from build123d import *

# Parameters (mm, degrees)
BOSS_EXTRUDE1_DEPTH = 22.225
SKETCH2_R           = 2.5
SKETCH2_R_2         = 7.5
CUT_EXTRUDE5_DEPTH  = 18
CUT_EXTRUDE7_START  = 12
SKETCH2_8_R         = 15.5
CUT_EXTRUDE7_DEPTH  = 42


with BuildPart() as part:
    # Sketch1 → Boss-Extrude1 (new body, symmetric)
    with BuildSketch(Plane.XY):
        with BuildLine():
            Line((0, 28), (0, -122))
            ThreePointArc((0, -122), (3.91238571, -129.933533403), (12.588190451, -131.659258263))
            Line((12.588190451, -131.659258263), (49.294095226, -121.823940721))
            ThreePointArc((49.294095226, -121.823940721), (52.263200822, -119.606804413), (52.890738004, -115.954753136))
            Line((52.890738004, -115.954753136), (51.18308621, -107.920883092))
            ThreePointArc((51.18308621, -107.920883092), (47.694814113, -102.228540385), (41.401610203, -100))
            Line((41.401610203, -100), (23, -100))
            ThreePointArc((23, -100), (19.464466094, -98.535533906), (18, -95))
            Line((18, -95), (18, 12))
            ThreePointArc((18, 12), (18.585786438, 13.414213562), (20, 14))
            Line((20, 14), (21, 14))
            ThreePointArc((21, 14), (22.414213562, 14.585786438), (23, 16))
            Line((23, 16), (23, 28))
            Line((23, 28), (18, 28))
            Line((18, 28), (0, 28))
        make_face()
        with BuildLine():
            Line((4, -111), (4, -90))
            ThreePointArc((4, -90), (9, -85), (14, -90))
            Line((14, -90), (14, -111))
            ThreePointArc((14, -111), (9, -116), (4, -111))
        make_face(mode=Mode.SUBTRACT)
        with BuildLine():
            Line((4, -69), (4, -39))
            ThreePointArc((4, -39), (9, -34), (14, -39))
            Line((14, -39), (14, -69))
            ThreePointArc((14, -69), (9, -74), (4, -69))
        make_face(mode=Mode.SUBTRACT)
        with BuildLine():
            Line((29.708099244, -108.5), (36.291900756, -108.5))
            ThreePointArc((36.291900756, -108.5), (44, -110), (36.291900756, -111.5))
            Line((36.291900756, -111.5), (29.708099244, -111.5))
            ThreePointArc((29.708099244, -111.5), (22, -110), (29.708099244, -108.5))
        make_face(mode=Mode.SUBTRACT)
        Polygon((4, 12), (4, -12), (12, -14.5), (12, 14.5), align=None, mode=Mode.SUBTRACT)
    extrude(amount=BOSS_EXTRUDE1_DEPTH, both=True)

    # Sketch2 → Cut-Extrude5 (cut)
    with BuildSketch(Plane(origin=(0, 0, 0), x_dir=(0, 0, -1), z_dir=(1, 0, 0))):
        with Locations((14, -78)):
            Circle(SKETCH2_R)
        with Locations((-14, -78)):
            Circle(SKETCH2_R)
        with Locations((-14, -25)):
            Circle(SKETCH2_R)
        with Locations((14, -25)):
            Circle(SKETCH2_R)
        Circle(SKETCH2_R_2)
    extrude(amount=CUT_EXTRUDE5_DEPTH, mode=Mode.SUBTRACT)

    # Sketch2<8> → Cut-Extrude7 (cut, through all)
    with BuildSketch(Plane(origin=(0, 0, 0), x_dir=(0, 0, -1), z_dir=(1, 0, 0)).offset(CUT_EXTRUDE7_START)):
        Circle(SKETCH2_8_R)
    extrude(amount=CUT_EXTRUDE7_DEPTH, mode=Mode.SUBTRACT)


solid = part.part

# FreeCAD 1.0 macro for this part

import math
import FreeCAD as App
import Part
import Sketcher
from FreeCAD import Vector
Q = App.Units.Quantity

doc = App.newDocument("Part")
params = doc.addObject("Spreadsheet::Sheet", "Params")
for row, (alias, value) in enumerate([
    ("sketch1_radius", "10 mm"),
    ("sketch1_radius2", "5 mm"),
    ("sketch1_radius3", "2 mm"),
    ("sketch1_radius4", "4 mm"),
    ("sketch1_width", "23 mm"),
    ("pad1_length", "44.45 mm"),
    ("sketch2_diameter", "5 mm"),
    ("sketch2_diameter2", "15 mm"),
    ("pocket1_length", "18 mm"),
    ("sketch3_diameter", "31 mm"),
], start=1):
    params.set(f"A{row}", alias)
    params.set(f"B{row}", "=" + value)
    params.setAlias(f"B{row}", alias)

body = doc.addObject("PartDesign::Body", "Body")

# Sketch on XY plane
sketch1 = body.newObject("Sketcher::SketchObject", "Sketch")
sketch1.AttachmentSupport = (doc.getObject("XY_Plane"), [""])
sketch1.MapMode = "FlatFace"
sketch1.addGeometry([
    Part.LineSegment(Vector(0, 28, 0), Vector(0, -122, 0)),  # 0
    Part.ArcOfCircle(Part.Circle(Vector(10, -122, 0), Vector(0, 0, 1), 10), math.radians(180), math.radians(285)),  # 1
    Part.LineSegment(Vector(12.6, -131.7, 0), Vector(49.3, -121.8, 0)),  # 2
    Part.ArcOfCircle(Part.Circle(Vector(48, -117, 0), Vector(0, 0, 1), 5), math.radians(-75), math.radians(12)),  # 3
    Part.LineSegment(Vector(52.9, -116, 0), Vector(51.2, -107.9, 0)),  # 4
    Part.ArcOfCircle(Part.Circle(Vector(41.4, -110, 0), Vector(0, 0, 1), 10), math.radians(12), math.radians(90)),  # 5
    Part.LineSegment(Vector(41.4, -100, 0), Vector(23, -100, 0)),  # 6
    Part.ArcOfCircle(Part.Circle(Vector(23, -95, 0), Vector(0, 0, 1), 5), math.radians(180), math.radians(270)),  # 7
    Part.LineSegment(Vector(18, -95, 0), Vector(18, 12, 0)),  # 8
    Part.ArcOfCircle(Part.Circle(Vector(20, 12, 0), Vector(0, 0, 1), 2), math.radians(90), math.radians(180)),  # 9
    Part.LineSegment(Vector(20, 14, 0), Vector(21, 14, 0)),  # 10
    Part.ArcOfCircle(Part.Circle(Vector(21, 16, 0), Vector(0, 0, 1), 2), math.radians(-90), math.radians(0)),  # 11
    Part.LineSegment(Vector(23, 16, 0), Vector(23, 28, 0)),  # 12
    Part.LineSegment(Vector(23, 28, 0), Vector(0, 28, 0)),  # 13
    Part.ArcOfCircle(Part.Circle(Vector(9, -111, 0), Vector(0, 0, 1), 5), math.radians(180), math.radians(360)),  # 14
    Part.LineSegment(Vector(4, -111, 0), Vector(4, -90, 0)),  # 15
    Part.ArcOfCircle(Part.Circle(Vector(9, -90, 0), Vector(0, 0, 1), 5), math.radians(0), math.radians(180)),  # 16
    Part.LineSegment(Vector(14, -90, 0), Vector(14, -111, 0)),  # 17
    Part.ArcOfCircle(Part.Circle(Vector(9, -69, 0), Vector(0, 0, 1), 5), math.radians(180), math.radians(360)),  # 18
    Part.LineSegment(Vector(4, -69, 0), Vector(4, -39, 0)),  # 19
    Part.ArcOfCircle(Part.Circle(Vector(9, -39, 0), Vector(0, 0, 1), 5), math.radians(0), math.radians(180)),  # 20
    Part.LineSegment(Vector(14, -39, 0), Vector(14, -69, 0)),  # 21
    Part.ArcOfCircle(Part.Circle(Vector(26, -110, 0), Vector(0, 0, 1), 4), math.radians(22), math.radians(338)),  # 22
    Part.LineSegment(Vector(29.7, -108.5, 0), Vector(36.3, -108.5, 0)),  # 23
    Part.ArcOfCircle(Part.Circle(Vector(40, -110, 0), Vector(0, 0, 1), 4), math.radians(-158), math.radians(158)),  # 24
    Part.LineSegment(Vector(36.3, -111.5, 0), Vector(29.7, -111.5, 0)),  # 25
    Part.LineSegment(Vector(4, -12, 0), Vector(4, 12, 0)),  # 26
    Part.LineSegment(Vector(4, 12, 0), Vector(12, 14.5, 0)),  # 27
    Part.LineSegment(Vector(12, 14.5, 0), Vector(12, -14.5, 0)),  # 28
    Part.LineSegment(Vector(12, -14.5, 0), Vector(4, -12, 0)),  # 29
], False)
sketch1.addConstraint([
    Sketcher.Constraint("Tangent", 0, 2, 1, 1),
    Sketcher.Constraint("Tangent", 1, 2, 2, 1),
    Sketcher.Constraint("Tangent", 2, 2, 3, 1),
    Sketcher.Constraint("Tangent", 3, 2, 4, 1),
    Sketcher.Constraint("Tangent", 4, 2, 5, 1),
    Sketcher.Constraint("Tangent", 5, 2, 6, 1),
    Sketcher.Constraint("Tangent", 6, 2, 7, 2),
    Sketcher.Constraint("Tangent", 7, 1, 8, 1),
    Sketcher.Constraint("Tangent", 8, 2, 9, 2),
    Sketcher.Constraint("Tangent", 9, 1, 10, 1),
    Sketcher.Constraint("Tangent", 10, 2, 11, 1),
    Sketcher.Constraint("Tangent", 11, 2, 12, 1),
    Sketcher.Constraint("Coincident", 12, 2, 13, 1),
    Sketcher.Constraint("Coincident", 13, 2, 0, 1),
    Sketcher.Constraint("Tangent", 14, 1, 15, 1),
    Sketcher.Constraint("Tangent", 15, 2, 16, 2),
    Sketcher.Constraint("Tangent", 16, 1, 17, 1),
    Sketcher.Constraint("Tangent", 17, 2, 14, 2),
    Sketcher.Constraint("Tangent", 18, 1, 19, 1),
    Sketcher.Constraint("Tangent", 19, 2, 20, 2),
    Sketcher.Constraint("Tangent", 20, 1, 21, 1),
    Sketcher.Constraint("Tangent", 21, 2, 18, 2),
    Sketcher.Constraint("Coincident", 22, 1, 23, 1),
    Sketcher.Constraint("Coincident", 23, 2, 24, 2),
    Sketcher.Constraint("Coincident", 24, 1, 25, 1),
    Sketcher.Constraint("Coincident", 25, 2, 22, 2),
    Sketcher.Constraint("Coincident", 26, 2, 27, 1),
    Sketcher.Constraint("Coincident", 27, 2, 28, 1),
    Sketcher.Constraint("Coincident", 28, 2, 29, 1),
    Sketcher.Constraint("Coincident", 29, 2, 26, 1),
    Sketcher.Constraint("Vertical", 0),
    Sketcher.Constraint("Horizontal", 6),
    Sketcher.Constraint("Vertical", 8),
    Sketcher.Constraint("Horizontal", 10),
    Sketcher.Constraint("Vertical", 12),
    Sketcher.Constraint("Horizontal", 13),
    Sketcher.Constraint("Vertical", 15),
    Sketcher.Constraint("Vertical", 17),
    Sketcher.Constraint("Vertical", 19),
    Sketcher.Constraint("Vertical", 21),
    Sketcher.Constraint("Horizontal", 23),
    Sketcher.Constraint("Horizontal", 25),
    Sketcher.Constraint("Vertical", 26),
    Sketcher.Constraint("Vertical", 28),
    Sketcher.Constraint("Equal", 1, 5),
    Sketcher.Constraint("Equal", 3, 7),
    Sketcher.Constraint("Equal", 9, 11),
    Sketcher.Constraint("Equal", 7, 14),
    Sketcher.Constraint("Equal", 16, 18),
    Sketcher.Constraint("Equal", 22, 24),
    Sketcher.Constraint("PointOnObject", 0, 2, -2),
    Sketcher.Constraint("Horizontal", 5, 3, 22, 3),
    Sketcher.Constraint("Horizontal", 22, 3, 24, 3),
    Sketcher.Constraint("Horizontal", 8, 2, 26, 2),
    Sketcher.Constraint("Vertical", 16, 3, 18, 3),
    Sketcher.Constraint("Vertical", 6, 2, 11, 2),
    Sketcher.Constraint("Vertical", 23, 2, 24, 1),
    Sketcher.Constraint("Vertical", 19, 2, 26, 2),
    Sketcher.Constraint("Equal", 27, 29),
    Sketcher.Constraint("Radius", 1, 10.0),
    Sketcher.Constraint("Radius", 3, 5.0),
    Sketcher.Constraint("Radius", 9, 2.0),
    Sketcher.Constraint("Radius", 22, 4.0),
    Sketcher.Constraint("DistanceX", 13, 2, 13, 1, 23.0),
    Sketcher.Constraint("DistanceY", 0, 2, 0, 1, 150.0),
    Sketcher.Constraint("DistanceY", 8, 1, 8, 2, 107.0),
    Sketcher.Constraint("DistanceY", 12, 1, 12, 2, 12.0),
    Sketcher.Constraint("DistanceY", 15, 1, 15, 2, 21.0),
    Sketcher.Constraint("DistanceY", 19, 1, 19, 2, 30.0),
    Sketcher.Constraint("DistanceY", 26, 1, 26, 2, 24.0),
    Sketcher.Constraint("DistanceY", 28, 2, 28, 1, 29.0),
    Sketcher.Constraint("Angle", 2, Q("15 deg")),
    Sketcher.Constraint("Angle", 4, Q("102 deg")),
    Sketcher.Constraint("DistanceY", 1, 3, -1, 1, 122.0),
    Sketcher.Constraint("DistanceX", -1, 1, 3, 3, 48.0),
    Sketcher.Constraint("DistanceX", -1, 1, 14, 3, 9.0),
    Sketcher.Constraint("DistanceY", 14, 3, -1, 1, 111.0),
    Sketcher.Constraint("DistanceY", 18, 3, -1, 1, 69.0),
    Sketcher.Constraint("DistanceX", -1, 1, 22, 3, 26.0),
    Sketcher.Constraint("DistanceX", -1, 1, 24, 3, 40.0),
    Sketcher.Constraint("DistanceX", -1, 1, 27, 2, 12.0),
    Sketcher.Constraint("DistanceY", 24, 1, 23, 2, 3.0),
])
sketch1.setExpression("Constraints[59]", "Params.sketch1_radius")
sketch1.setExpression("Constraints[60]", "Params.sketch1_radius2")
sketch1.setExpression("Constraints[61]", "Params.sketch1_radius3")
sketch1.setExpression("Constraints[62]", "Params.sketch1_radius4")
sketch1.setExpression("Constraints[63]", "Params.sketch1_width")
pad1 = body.newObject("PartDesign::Pad", "Pad")
pad1.Profile = sketch1
pad1.setExpression("Length", "Params.pad1_length")
pad1.Midplane = True

# Sketch on YZ plane
sketch2 = body.newObject("Sketcher::SketchObject", "Sketch001")
sketch2.AttachmentSupport = (doc.getObject("YZ_Plane"), [""])
sketch2.MapMode = "FlatFace"
sketch2.addGeometry([
    Part.Circle(Vector(-78, -14, 0), Vector(0, 0, 1), 2.5),  # 0
    Part.Circle(Vector(-78, 14, 0), Vector(0, 0, 1), 2.5),  # 1
    Part.Circle(Vector(-25, 14, 0), Vector(0, 0, 1), 2.5),  # 2
    Part.Circle(Vector(-25, -14, 0), Vector(0, 0, 1), 2.5),  # 3
    Part.Circle(Vector(0, 0, 0), Vector(0, 0, 1), 7.5),  # 4
], False)
sketch2.addConstraint([
    Sketcher.Constraint("Coincident", 4, 3, -1, 1),
    Sketcher.Constraint("Equal", 0, 1),
    Sketcher.Constraint("Equal", 1, 2),
    Sketcher.Constraint("Equal", 2, 3),
    Sketcher.Constraint("Symmetric", 0, 3, 1, 3, -1),
    Sketcher.Constraint("Symmetric", 2, 3, 3, 3, -1),
    Sketcher.Constraint("Horizontal", 1, 3, 2, 3),
    Sketcher.Constraint("Diameter", 0, 5.0),
    Sketcher.Constraint("Diameter", 4, 15.0),
    Sketcher.Constraint("DistanceX", 0, 3, -1, 1, 78.0),
    Sketcher.Constraint("DistanceY", 0, 3, -1, 1, 14.0),
    Sketcher.Constraint("DistanceX", 2, 3, -1, 1, 25.0),
])
sketch2.setExpression("Constraints[7]", "Params.sketch2_diameter")
sketch2.setExpression("Constraints[8]", "Params.sketch2_diameter2")
pocket1 = body.newObject("PartDesign::Pocket", "Pocket")
pocket1.Profile = sketch2
pocket1.setExpression("Length", "Params.pocket1_length")
pocket1.Reversed = True

# Sketch on YZ plane
sketch3 = body.newObject("Sketcher::SketchObject", "Sketch002")
sketch3.AttachmentSupport = (doc.getObject("YZ_Plane"), [""])
sketch3.MapMode = "FlatFace"
sketch3.AttachmentOffset = App.Placement(Vector(0, 0, 12), App.Rotation())
sketch3.addGeometry(Part.Circle(Vector(0, 0, 0), Vector(0, 0, 1), 16), False)
sketch3.addConstraint([
    Sketcher.Constraint("Coincident", 0, 3, -1, 1),
    Sketcher.Constraint("Diameter", 0, 31.0),
])
sketch3.setExpression("Constraints[1]", "Params.sketch3_diameter")
pocket2 = body.newObject("PartDesign::Pocket", "Pocket001")
pocket2.Profile = sketch3
pocket2.Type = "ThroughAll"
pocket2.Reversed = True

doc.recompute()
